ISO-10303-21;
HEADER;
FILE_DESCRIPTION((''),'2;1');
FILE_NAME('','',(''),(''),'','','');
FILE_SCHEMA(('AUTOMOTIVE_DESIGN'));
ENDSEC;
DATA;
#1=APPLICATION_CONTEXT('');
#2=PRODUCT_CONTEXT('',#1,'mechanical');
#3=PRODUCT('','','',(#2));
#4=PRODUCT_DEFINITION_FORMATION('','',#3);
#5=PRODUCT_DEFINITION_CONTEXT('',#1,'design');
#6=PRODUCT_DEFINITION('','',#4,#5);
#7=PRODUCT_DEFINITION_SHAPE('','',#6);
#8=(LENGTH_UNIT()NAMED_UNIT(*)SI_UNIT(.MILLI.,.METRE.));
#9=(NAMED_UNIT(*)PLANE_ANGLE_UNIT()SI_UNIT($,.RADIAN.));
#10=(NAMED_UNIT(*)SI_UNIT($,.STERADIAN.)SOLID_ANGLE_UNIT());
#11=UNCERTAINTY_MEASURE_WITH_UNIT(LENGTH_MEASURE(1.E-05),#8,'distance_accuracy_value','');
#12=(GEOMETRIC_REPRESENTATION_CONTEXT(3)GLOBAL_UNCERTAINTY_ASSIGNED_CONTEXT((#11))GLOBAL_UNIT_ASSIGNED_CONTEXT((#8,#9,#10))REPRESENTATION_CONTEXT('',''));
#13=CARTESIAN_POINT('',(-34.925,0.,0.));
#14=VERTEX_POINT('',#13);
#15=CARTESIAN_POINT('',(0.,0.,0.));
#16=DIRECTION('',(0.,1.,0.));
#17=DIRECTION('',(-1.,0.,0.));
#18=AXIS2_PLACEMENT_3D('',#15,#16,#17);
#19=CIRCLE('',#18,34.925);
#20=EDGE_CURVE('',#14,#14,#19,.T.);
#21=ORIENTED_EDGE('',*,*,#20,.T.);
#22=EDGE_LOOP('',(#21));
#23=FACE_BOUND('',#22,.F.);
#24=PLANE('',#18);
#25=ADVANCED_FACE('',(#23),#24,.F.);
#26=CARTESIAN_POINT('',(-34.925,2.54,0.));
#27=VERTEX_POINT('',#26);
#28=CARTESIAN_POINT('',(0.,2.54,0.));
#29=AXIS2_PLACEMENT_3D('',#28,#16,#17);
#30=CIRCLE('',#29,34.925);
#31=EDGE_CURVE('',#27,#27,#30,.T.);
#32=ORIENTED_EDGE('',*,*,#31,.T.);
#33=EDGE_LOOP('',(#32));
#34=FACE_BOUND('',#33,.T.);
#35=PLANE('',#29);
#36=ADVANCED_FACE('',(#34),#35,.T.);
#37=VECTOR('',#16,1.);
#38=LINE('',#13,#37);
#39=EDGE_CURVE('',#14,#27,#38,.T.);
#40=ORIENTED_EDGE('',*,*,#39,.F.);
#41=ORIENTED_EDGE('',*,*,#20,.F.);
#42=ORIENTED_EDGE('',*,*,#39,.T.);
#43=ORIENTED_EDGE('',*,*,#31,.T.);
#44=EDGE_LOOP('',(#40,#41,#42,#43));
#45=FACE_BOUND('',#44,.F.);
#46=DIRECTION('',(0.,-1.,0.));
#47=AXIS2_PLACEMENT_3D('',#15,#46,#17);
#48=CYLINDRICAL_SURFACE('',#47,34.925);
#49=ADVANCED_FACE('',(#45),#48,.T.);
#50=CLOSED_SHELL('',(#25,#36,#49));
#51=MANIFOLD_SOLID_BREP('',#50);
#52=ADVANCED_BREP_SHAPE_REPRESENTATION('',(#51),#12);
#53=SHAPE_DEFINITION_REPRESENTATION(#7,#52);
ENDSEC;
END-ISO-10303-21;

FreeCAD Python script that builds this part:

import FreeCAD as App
import Part
import Sketcher
from FreeCAD import Vector
Q = App.Units.Quantity

doc = App.newDocument("Part")
body = doc.addObject("PartDesign::Body", "Body")

sketch1 = doc.addObject("Sketcher::SketchObject", "Sketch")
body.addObject(sketch1)
sketch1.AttachmentSupport = (doc.XZ_Plane, [""])
sketch1.MapMode = "FlatFace"
sketch1.addGeometry(Part.Circle(Vector(0, 0, 0), Vector(0, 0, 1), 35), False)
sketch1.addConstraint(Sketcher.Constraint("Coincident", 0, 3, -1, 1))
sketch1.addConstraint(Sketcher.Constraint("Diameter", 0, Q("2.75 in")))
pad1 = doc.addObject("PartDesign::Pad", "Pad")
body.addObject(pad1)
pad1.Profile = sketch1
pad1.Length = Q("0.1 in")
pad1.Reversed = True

doc.recompute()
